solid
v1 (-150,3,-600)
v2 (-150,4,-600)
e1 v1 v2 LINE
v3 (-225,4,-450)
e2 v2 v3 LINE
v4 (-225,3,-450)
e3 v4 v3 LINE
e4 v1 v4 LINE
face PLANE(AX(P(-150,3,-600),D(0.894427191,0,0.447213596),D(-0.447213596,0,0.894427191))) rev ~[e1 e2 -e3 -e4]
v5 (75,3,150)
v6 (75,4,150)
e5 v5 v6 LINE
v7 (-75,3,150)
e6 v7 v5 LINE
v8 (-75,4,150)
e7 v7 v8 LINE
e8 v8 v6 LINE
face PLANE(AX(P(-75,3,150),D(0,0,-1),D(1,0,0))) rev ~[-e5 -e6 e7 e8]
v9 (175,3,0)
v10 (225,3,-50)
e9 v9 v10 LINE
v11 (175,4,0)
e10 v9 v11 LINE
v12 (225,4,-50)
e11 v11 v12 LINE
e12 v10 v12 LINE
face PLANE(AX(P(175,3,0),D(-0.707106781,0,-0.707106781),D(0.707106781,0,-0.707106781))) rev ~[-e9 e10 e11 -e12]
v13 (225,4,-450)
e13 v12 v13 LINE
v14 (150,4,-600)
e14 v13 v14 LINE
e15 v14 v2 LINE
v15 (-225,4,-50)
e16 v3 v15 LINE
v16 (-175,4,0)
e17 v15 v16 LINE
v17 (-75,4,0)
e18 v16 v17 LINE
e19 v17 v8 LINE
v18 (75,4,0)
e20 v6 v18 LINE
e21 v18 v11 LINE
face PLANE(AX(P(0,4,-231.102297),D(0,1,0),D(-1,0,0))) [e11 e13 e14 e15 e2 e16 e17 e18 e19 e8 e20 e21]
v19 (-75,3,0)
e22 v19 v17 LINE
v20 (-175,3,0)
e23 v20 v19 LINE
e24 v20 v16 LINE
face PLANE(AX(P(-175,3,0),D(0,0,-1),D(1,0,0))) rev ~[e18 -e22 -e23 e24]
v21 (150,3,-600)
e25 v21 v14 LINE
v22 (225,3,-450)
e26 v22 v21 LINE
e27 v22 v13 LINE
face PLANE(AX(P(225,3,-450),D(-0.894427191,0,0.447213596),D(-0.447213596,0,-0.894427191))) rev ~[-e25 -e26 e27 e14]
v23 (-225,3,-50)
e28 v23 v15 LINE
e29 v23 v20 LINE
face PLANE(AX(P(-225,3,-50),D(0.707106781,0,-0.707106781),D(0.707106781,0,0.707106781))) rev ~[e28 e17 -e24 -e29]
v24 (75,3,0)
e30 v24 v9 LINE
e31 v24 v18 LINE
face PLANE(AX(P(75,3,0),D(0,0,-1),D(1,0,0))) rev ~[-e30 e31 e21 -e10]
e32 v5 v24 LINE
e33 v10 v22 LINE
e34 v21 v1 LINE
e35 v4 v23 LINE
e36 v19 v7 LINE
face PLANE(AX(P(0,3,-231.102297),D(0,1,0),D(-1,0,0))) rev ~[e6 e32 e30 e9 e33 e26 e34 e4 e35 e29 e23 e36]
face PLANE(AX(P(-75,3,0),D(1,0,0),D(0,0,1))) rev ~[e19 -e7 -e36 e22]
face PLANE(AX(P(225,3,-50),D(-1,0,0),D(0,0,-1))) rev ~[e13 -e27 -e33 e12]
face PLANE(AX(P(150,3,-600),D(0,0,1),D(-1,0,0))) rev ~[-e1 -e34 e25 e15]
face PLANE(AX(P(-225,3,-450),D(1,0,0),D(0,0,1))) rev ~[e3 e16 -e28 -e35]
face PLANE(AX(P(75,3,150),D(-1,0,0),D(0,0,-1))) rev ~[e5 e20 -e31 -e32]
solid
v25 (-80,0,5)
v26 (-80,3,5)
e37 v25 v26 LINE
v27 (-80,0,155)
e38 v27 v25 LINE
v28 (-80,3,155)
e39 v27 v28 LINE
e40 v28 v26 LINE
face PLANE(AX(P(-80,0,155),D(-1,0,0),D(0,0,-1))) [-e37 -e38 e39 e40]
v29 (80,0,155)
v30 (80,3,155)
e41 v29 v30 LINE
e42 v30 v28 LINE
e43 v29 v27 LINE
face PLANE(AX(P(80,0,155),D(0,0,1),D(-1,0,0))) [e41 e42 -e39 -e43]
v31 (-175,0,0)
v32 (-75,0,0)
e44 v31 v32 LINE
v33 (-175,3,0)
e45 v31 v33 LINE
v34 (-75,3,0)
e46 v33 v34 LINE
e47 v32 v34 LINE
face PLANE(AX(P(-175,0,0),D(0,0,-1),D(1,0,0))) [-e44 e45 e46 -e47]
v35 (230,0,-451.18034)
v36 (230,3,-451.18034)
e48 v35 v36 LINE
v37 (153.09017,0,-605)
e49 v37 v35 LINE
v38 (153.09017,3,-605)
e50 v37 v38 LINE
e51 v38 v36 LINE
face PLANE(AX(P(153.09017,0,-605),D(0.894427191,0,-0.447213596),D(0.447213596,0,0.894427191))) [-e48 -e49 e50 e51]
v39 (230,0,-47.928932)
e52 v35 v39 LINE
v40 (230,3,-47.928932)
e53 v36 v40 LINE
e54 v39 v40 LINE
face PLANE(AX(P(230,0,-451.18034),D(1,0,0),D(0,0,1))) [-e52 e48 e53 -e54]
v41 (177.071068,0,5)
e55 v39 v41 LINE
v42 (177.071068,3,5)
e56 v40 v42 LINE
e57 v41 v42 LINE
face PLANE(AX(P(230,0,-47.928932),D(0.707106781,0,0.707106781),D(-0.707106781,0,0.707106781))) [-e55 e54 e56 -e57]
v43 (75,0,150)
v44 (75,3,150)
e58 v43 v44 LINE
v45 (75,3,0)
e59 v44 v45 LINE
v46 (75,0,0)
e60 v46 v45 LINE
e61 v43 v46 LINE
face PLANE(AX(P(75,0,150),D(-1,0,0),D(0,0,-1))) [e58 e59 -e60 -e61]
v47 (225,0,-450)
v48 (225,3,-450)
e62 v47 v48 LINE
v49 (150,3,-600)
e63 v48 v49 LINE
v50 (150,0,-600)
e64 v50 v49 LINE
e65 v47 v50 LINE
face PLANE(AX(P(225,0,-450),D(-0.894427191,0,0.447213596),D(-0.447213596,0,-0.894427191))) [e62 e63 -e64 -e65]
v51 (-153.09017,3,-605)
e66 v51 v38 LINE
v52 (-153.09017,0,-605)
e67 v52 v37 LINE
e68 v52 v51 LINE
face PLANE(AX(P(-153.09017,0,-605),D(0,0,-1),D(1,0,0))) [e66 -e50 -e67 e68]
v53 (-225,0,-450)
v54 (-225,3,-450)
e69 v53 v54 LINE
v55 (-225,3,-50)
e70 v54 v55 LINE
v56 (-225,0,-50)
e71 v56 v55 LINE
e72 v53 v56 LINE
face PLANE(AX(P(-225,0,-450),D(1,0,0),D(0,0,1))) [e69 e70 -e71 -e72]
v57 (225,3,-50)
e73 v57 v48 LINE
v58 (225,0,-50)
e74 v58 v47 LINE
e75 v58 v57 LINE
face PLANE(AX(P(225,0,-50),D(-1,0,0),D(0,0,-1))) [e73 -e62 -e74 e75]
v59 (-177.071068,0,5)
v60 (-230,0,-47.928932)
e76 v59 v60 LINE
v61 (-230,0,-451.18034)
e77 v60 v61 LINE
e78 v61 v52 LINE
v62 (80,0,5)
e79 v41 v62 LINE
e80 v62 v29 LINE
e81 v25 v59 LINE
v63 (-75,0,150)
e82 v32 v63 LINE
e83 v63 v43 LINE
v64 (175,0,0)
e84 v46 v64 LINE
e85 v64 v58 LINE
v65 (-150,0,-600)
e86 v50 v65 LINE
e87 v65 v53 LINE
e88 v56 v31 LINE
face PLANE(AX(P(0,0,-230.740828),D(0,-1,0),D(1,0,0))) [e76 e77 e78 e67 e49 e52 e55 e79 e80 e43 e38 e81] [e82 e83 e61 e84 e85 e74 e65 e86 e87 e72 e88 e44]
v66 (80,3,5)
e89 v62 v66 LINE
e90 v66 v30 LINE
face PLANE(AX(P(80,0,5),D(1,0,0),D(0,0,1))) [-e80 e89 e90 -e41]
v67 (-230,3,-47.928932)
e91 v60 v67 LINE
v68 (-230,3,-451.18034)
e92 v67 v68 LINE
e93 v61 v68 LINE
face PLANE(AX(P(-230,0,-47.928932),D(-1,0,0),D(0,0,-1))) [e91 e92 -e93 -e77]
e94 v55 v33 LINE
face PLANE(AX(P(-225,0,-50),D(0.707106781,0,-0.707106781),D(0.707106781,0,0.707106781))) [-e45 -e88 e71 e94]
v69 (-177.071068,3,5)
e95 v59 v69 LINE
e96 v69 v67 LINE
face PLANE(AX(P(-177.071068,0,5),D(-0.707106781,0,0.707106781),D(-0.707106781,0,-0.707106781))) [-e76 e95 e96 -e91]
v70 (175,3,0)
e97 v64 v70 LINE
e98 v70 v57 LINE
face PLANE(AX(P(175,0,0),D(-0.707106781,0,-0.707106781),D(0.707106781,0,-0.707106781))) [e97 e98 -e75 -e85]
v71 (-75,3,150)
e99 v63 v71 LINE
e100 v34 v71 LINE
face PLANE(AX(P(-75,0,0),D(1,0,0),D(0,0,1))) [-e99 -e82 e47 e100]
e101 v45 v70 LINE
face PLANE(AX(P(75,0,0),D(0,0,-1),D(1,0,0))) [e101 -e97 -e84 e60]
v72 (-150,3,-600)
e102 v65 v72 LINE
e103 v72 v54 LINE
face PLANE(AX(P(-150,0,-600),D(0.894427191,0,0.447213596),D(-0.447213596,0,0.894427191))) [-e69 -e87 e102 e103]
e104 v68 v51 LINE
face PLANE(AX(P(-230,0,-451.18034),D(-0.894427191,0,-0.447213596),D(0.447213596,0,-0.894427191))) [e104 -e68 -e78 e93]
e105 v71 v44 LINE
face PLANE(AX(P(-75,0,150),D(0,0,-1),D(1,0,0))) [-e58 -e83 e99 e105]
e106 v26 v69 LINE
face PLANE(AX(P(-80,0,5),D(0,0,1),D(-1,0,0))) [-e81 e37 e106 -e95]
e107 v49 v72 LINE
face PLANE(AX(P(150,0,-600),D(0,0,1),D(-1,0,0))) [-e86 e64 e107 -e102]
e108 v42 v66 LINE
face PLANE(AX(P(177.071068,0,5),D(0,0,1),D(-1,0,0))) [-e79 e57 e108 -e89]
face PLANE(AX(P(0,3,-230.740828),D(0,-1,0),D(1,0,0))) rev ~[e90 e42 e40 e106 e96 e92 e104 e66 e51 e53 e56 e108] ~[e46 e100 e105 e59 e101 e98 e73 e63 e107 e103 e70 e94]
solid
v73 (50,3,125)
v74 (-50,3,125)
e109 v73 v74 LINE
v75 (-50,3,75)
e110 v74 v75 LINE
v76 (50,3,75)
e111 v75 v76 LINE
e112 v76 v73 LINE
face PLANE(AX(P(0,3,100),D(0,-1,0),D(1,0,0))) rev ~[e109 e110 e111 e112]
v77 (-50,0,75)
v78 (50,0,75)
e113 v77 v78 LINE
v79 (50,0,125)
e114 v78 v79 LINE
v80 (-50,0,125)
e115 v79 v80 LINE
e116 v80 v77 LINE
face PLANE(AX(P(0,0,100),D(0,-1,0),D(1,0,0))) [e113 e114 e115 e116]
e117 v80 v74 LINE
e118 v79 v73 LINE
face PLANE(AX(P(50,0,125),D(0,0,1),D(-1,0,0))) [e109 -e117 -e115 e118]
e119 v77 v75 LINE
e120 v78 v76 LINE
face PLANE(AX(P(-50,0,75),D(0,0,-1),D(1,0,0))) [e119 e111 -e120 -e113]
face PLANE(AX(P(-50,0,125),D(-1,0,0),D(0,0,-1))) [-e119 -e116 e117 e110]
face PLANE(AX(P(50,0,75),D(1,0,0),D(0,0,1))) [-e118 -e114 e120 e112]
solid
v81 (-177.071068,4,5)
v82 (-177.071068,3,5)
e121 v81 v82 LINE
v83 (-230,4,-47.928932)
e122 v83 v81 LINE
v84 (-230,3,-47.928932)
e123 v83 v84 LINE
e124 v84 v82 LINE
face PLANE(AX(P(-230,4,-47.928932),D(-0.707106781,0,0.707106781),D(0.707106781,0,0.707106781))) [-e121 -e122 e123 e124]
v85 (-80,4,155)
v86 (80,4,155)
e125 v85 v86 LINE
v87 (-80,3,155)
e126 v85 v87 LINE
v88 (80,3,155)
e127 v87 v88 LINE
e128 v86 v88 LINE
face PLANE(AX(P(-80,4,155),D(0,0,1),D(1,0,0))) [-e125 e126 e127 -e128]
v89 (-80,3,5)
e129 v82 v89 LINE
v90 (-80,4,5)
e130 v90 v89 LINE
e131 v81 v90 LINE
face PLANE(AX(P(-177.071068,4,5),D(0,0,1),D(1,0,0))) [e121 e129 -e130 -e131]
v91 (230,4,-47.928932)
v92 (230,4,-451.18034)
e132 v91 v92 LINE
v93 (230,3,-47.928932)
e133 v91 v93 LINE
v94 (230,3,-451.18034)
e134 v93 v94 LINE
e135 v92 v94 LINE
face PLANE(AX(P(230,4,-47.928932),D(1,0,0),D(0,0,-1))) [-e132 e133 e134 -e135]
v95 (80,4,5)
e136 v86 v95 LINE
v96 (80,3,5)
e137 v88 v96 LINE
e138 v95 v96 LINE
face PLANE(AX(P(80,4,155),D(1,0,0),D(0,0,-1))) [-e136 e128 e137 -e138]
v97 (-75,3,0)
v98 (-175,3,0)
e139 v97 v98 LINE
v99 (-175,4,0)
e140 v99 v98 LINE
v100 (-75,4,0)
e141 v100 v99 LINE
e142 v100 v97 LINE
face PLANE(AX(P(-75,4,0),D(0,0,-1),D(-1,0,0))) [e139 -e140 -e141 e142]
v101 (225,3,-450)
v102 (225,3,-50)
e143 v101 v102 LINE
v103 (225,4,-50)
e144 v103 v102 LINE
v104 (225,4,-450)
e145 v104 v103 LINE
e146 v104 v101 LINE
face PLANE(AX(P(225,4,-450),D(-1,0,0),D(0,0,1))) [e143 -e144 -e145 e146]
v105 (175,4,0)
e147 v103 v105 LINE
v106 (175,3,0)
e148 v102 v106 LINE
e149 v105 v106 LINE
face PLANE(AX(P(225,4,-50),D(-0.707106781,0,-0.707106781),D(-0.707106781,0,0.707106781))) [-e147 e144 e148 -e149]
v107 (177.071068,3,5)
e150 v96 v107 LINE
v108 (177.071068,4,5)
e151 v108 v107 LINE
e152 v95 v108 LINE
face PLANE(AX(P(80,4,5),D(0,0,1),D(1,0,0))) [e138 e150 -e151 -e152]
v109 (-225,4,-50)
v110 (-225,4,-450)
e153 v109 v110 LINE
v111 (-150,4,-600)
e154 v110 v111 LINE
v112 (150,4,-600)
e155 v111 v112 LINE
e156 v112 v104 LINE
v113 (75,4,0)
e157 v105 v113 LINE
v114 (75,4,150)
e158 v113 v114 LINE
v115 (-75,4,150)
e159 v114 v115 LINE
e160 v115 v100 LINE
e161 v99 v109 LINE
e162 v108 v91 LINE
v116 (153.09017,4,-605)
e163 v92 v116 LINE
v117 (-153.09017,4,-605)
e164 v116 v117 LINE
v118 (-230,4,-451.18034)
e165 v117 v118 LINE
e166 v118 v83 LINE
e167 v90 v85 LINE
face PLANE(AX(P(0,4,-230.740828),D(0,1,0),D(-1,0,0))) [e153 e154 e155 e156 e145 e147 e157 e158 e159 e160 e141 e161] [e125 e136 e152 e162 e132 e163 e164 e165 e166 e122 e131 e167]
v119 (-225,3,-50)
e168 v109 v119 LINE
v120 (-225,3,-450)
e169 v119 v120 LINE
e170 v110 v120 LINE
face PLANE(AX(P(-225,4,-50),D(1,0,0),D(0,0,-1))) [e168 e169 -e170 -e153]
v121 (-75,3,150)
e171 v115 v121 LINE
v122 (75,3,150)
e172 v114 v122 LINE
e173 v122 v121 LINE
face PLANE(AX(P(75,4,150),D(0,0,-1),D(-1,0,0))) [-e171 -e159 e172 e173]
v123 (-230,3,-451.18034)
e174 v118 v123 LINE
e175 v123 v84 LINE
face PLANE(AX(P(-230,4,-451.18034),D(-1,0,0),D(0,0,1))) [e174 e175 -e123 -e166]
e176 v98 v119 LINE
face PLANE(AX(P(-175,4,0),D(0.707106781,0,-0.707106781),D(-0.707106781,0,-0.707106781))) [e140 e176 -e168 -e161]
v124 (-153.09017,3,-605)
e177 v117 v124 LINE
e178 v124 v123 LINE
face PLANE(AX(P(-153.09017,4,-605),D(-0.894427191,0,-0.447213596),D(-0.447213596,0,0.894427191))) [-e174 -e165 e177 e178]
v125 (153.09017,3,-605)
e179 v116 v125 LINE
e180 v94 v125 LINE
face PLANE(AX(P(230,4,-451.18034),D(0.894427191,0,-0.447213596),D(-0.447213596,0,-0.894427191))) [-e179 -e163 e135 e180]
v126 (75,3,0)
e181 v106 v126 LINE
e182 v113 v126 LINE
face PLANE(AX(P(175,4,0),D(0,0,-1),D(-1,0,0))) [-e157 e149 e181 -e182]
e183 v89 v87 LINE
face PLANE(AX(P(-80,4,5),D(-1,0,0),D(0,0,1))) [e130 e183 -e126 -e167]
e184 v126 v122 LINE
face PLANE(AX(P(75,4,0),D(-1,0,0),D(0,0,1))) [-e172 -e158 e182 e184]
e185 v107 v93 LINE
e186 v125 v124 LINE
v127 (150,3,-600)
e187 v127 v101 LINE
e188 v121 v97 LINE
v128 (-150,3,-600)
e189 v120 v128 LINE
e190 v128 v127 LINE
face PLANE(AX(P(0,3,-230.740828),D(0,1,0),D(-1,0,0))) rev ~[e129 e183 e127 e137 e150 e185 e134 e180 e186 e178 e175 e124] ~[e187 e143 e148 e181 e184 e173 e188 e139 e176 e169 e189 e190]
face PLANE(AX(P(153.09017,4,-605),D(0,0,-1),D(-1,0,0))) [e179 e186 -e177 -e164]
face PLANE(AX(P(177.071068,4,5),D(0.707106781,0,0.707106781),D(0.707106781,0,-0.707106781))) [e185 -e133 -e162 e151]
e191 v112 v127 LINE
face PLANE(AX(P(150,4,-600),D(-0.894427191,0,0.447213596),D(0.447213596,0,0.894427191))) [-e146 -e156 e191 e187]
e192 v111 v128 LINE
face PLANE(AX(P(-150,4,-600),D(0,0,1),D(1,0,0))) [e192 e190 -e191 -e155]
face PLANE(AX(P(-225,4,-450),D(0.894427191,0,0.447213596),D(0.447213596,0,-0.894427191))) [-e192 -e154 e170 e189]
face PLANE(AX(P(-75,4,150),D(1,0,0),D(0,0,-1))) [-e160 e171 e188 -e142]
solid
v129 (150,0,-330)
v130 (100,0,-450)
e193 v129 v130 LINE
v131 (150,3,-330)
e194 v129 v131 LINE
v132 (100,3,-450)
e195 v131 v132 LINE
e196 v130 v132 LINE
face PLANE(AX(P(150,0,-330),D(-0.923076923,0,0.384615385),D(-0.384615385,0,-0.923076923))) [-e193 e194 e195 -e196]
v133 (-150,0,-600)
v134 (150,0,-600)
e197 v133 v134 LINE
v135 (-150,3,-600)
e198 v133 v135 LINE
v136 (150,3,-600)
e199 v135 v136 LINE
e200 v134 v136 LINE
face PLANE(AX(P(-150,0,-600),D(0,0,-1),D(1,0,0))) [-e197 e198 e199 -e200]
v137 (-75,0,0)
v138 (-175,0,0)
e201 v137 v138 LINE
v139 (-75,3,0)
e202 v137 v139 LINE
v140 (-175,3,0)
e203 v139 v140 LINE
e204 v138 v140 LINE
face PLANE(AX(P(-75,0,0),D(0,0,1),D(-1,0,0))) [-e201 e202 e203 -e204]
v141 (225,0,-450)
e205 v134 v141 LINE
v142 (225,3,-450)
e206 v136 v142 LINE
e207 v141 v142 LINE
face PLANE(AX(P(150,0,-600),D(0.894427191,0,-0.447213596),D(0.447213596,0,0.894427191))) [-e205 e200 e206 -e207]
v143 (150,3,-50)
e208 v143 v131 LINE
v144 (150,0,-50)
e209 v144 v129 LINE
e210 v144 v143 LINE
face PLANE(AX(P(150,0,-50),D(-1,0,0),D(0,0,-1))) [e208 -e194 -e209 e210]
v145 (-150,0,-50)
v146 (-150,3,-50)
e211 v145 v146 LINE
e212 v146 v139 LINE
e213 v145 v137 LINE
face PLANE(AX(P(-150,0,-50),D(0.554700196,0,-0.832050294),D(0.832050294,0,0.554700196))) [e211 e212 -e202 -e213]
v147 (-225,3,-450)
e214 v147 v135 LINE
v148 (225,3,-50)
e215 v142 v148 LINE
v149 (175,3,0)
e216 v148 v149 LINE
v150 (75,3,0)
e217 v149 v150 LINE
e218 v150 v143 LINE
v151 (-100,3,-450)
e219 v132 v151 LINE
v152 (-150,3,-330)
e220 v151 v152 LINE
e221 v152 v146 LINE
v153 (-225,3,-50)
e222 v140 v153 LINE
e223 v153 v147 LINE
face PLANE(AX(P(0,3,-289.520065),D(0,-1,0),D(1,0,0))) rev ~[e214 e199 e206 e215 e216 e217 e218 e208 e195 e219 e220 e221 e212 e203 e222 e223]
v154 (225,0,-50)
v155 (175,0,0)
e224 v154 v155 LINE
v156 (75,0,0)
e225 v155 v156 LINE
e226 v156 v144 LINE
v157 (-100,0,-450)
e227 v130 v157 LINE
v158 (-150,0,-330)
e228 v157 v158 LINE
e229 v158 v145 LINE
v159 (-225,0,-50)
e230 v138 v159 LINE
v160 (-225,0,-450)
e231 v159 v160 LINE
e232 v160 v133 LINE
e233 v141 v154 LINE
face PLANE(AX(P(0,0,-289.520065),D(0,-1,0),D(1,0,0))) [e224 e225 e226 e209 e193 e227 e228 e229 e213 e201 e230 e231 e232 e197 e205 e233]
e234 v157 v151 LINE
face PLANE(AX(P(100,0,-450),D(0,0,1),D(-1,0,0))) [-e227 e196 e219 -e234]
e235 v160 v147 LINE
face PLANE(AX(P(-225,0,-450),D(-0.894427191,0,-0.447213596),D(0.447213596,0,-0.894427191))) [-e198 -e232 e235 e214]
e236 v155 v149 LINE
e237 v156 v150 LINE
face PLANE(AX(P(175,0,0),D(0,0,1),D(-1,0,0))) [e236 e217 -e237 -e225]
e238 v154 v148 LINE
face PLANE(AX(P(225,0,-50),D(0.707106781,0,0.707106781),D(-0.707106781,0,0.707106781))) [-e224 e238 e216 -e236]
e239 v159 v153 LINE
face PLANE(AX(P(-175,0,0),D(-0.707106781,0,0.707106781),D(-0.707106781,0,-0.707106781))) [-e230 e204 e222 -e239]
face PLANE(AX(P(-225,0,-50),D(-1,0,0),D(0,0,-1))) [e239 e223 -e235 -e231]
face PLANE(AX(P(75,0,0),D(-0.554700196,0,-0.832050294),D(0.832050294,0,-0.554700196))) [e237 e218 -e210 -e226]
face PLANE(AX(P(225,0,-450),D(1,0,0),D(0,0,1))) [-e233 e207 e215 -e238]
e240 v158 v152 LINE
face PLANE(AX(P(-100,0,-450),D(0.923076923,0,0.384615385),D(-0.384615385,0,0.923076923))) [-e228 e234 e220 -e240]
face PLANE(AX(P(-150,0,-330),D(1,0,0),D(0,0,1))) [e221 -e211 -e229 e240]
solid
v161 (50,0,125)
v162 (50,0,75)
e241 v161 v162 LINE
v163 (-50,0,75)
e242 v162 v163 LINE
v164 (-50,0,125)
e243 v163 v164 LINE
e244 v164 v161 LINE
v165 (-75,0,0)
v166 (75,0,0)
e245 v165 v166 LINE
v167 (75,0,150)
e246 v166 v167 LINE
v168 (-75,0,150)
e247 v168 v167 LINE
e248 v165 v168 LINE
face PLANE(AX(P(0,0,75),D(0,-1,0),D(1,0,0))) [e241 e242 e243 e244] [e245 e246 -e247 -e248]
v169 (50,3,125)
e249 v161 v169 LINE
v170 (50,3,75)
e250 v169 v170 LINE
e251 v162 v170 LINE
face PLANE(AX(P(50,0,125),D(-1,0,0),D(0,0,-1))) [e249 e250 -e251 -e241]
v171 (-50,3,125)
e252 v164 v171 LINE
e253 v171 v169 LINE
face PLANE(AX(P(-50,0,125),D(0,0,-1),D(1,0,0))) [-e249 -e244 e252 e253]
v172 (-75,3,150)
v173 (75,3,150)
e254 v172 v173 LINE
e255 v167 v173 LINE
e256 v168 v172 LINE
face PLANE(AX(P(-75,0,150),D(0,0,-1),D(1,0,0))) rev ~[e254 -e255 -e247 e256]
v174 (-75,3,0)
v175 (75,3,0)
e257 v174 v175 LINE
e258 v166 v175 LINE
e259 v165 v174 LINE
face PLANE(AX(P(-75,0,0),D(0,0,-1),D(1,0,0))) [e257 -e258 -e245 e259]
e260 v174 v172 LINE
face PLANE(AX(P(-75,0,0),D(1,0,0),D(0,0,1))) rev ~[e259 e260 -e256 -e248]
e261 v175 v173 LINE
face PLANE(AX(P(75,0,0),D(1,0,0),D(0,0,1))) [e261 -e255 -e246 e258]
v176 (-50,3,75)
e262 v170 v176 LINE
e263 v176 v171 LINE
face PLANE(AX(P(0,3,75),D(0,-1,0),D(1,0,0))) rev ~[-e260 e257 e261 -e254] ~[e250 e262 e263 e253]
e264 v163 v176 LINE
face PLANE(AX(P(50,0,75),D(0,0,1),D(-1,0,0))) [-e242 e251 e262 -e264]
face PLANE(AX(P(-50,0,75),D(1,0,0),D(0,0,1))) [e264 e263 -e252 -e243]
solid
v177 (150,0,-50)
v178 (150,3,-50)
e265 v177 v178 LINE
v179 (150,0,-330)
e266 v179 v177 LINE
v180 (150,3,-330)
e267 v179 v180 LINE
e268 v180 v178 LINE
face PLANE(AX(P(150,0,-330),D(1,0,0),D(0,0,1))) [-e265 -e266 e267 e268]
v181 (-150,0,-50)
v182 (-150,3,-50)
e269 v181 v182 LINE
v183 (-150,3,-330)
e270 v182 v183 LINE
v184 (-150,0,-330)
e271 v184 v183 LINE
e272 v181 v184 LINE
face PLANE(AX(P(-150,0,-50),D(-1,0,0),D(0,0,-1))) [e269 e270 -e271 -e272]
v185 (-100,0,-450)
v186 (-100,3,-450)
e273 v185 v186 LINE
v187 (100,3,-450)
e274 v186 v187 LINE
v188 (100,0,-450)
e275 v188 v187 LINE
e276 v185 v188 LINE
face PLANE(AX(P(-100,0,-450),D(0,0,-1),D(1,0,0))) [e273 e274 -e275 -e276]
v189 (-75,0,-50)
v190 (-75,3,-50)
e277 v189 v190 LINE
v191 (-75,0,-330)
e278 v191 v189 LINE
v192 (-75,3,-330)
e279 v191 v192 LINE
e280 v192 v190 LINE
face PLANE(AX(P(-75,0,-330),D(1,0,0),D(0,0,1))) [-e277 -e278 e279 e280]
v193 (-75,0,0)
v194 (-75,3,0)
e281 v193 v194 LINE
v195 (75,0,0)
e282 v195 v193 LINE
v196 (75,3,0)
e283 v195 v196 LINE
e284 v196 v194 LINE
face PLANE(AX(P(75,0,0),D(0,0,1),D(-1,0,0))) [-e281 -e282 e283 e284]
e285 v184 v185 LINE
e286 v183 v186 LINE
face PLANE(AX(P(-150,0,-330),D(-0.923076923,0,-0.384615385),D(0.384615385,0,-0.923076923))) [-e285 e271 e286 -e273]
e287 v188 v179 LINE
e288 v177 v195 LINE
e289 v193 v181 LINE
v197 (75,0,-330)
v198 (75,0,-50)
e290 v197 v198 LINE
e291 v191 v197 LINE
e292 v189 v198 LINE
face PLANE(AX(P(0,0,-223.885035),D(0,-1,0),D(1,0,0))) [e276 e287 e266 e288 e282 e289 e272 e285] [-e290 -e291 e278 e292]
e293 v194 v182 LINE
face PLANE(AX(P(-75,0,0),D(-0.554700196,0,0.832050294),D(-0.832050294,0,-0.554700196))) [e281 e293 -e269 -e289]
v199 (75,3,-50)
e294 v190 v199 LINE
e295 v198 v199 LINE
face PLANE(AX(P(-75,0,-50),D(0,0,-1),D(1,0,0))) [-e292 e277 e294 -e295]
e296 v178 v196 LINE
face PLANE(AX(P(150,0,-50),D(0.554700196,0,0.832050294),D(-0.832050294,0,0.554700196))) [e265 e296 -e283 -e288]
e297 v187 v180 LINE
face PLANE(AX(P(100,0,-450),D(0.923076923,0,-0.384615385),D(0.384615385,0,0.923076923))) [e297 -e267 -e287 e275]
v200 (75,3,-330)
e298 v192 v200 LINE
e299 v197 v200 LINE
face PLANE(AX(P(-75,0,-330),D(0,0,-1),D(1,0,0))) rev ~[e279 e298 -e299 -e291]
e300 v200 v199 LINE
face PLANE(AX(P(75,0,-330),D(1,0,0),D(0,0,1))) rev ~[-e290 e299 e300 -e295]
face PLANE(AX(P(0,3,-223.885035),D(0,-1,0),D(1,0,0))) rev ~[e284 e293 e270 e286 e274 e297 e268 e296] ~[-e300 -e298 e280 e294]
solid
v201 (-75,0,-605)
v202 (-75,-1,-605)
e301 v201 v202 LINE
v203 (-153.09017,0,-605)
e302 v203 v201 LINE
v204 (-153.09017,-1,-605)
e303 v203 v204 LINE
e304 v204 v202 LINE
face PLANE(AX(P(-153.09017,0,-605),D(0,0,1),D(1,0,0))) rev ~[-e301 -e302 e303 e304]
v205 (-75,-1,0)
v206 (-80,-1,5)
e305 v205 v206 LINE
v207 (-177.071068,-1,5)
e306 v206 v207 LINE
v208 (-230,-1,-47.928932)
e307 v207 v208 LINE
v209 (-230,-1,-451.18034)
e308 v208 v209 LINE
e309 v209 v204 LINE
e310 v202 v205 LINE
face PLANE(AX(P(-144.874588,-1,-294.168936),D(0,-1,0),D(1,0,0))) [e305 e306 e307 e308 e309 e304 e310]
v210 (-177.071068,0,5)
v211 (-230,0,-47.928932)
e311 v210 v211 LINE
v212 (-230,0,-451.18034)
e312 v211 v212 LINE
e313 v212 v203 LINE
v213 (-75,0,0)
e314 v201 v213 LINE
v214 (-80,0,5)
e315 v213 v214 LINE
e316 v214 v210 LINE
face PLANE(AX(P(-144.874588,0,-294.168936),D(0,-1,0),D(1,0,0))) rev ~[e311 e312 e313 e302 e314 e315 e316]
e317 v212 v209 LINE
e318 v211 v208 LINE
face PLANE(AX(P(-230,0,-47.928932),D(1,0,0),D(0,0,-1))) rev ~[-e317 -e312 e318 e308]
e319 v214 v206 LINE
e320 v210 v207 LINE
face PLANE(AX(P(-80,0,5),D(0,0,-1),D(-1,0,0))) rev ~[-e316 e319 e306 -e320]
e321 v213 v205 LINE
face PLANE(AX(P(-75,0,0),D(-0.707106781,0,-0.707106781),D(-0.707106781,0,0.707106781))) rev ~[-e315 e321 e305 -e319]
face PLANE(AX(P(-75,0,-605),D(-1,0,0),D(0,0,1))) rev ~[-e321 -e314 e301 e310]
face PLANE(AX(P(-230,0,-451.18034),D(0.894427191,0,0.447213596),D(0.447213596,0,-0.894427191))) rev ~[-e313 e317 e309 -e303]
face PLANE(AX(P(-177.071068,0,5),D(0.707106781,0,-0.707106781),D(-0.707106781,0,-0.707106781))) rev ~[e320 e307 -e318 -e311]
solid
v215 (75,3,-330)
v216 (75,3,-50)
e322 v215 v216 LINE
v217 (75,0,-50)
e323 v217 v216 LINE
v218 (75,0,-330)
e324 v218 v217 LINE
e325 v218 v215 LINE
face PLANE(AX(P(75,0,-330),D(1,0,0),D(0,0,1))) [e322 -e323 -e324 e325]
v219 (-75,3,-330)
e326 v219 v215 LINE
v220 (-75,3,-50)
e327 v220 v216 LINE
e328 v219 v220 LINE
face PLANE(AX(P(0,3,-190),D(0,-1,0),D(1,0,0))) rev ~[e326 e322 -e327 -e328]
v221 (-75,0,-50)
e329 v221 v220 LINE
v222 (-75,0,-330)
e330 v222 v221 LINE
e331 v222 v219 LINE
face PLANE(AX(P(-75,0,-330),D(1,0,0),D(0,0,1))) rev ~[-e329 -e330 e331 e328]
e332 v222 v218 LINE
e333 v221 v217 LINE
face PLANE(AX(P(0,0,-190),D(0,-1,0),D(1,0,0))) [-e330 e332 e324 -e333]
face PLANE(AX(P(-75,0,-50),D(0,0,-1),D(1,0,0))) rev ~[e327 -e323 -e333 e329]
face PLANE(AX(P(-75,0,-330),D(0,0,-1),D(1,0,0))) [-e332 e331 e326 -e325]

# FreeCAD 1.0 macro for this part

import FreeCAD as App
import Part
import Sketcher
from FreeCAD import Vector
Q = App.Units.Quantity

doc = App.newDocument("Part")
body = doc.addObject("PartDesign::Body", "Body")

sketch1 = doc.addObject("Sketcher::SketchObject", "Sketch")
body.addObject(sketch1)
sketch1.AttachmentSupport = (doc.XZ_Plane, [""])
sketch1.MapMode = "FlatFace"
sketch1.addGeometry([
    Part.LineSegment(Vector(50, 125, 0), Vector(-50, 125, 0)),
    Part.LineSegment(Vector(-50, 125, 0), Vector(-50, 75, 0)),
    Part.LineSegment(Vector(-50, 75, 0), Vector(50, 75, 0)),
    Part.LineSegment(Vector(50, 75, 0), Vector(50, 125, 0)),
], False)
sketch1.addConstraint([
    Sketcher.Constraint("Coincident", 0, 2, 1, 1),
    Sketcher.Constraint("Coincident", 1, 2, 2, 1),
    Sketcher.Constraint("Coincident", 2, 2, 3, 1),
    Sketcher.Constraint("Coincident", 3, 2, 0, 1),
    Sketcher.Constraint("Horizontal", 0),
    Sketcher.Constraint("Vertical", 1),
    Sketcher.Constraint("Horizontal", 2),
    Sketcher.Constraint("Vertical", 3),
    Sketcher.Constraint("DistanceX", 0, 2, 0, 1, 100.0),
    Sketcher.Constraint("DistanceY", 1, 2, 1, 1, 50.0),
    Sketcher.Constraint("DistanceX", 0, 2, -1, 1, 50.0),
    Sketcher.Constraint("DistanceY", -1, 1, 0, 2, 125.0),
])
pad1 = doc.addObject("PartDesign::Pad", "Pad")
body.addObject(pad1)
pad1.Profile = sketch1
pad1.Length = 3
pad1.Reversed = True
body2 = doc.addObject("PartDesign::Body", "Body001")

sketch2 = doc.addObject("Sketcher::SketchObject", "Sketch001")
body2.addObject(sketch2)
sketch2.AttachmentSupport = (doc.getObject("XZ_Plane001"), [""])
sketch2.MapMode = "FlatFace"
sketch2.addGeometry([
    Part.LineSegment(Vector(-75, 150, 0), Vector(-75, 0, 0)),
    Part.LineSegment(Vector(-75, 0, 0), Vector(75, 0, 0)),
    Part.LineSegment(Vector(75, 0, 0), Vector(75, 150, 0)),
    Part.LineSegment(Vector(75, 150, 0), Vector(-75, 150, 0)),
    Part.LineSegment(Vector(-50, 75, 0), Vector(-50, 125, 0)),
    Part.LineSegment(Vector(-50, 125, 0), Vector(50, 125, 0)),
    Part.LineSegment(Vector(50, 125, 0), Vector(50, 75, 0)),
    Part.LineSegment(Vector(50, 75, 0), Vector(-50, 75, 0)),
], False)
sketch2.addConstraint([
    Sketcher.Constraint("Coincident", 0, 2, 1, 1),
    Sketcher.Constraint("Coincident", 1, 2, 2, 1),
    Sketcher.Constraint("Coincident", 2, 2, 3, 1),
    Sketcher.Constraint("Coincident", 3, 2, 0, 1),
    Sketcher.Constraint("Coincident", 4, 2, 5, 1),
    Sketcher.Constraint("Coincident", 5, 2, 6, 1),
    Sketcher.Constraint("Coincident", 6, 2, 7, 1),
    Sketcher.Constraint("Coincident", 7, 2, 4, 1),
    Sketcher.Constraint("Vertical", 0),
    Sketcher.Constraint("Horizontal", 1),
    Sketcher.Constraint("Vertical", 2),
    Sketcher.Constraint("Horizontal", 3),
    Sketcher.Constraint("Vertical", 4),
    Sketcher.Constraint("Horizontal", 5),
    Sketcher.Constraint("Vertical", 6),
    Sketcher.Constraint("Horizontal", 7),
    Sketcher.Constraint("Symmetric", 0, 2, 1, 2, -1, 1),
    Sketcher.Constraint("Equal", 3, 0),
    Sketcher.Constraint("DistanceX", 1, 1, 1, 2, 150.0),
    Sketcher.Constraint("DistanceX", 5, 1, 5, 2, 100.0),
    Sketcher.Constraint("DistanceY", 4, 1, 4, 2, 50.0),
    Sketcher.Constraint("DistanceX", 4, 2, -1, 1, 50.0),
    Sketcher.Constraint("DistanceY", -1, 1, 4, 2, 125.0),
])
pad2 = doc.addObject("PartDesign::Pad", "Pad001")
body2.addObject(pad2)
pad2.Profile = sketch2
pad2.Length = 3
pad2.Reversed = True
body3 = doc.addObject("PartDesign::Body", "Body002")

sketch3 = doc.addObject("Sketcher::SketchObject", "Sketch002")
body3.addObject(sketch3)
sketch3.AttachmentSupport = (doc.getObject("XZ_Plane002"), [""])
sketch3.MapMode = "FlatFace"
sketch3.addGeometry([
    Part.LineSegment(Vector(-75, -50, 0), Vector(-75, -330, 0)),
    Part.LineSegment(Vector(-75, -330, 0), Vector(75, -330, 0)),
    Part.LineSegment(Vector(75, -330, 0), Vector(75, -50, 0)),
    Part.LineSegment(Vector(75, -50, 0), Vector(-75, -50, 0)),
], False)
sketch3.addConstraint([
    Sketcher.Constraint("Coincident", 0, 2, 1, 1),
    Sketcher.Constraint("Coincident", 1, 2, 2, 1),
    Sketcher.Constraint("Coincident", 2, 2, 3, 1),
    Sketcher.Constraint("Coincident", 3, 2, 0, 1),
    Sketcher.Constraint("Vertical", 0),
    Sketcher.Constraint("Horizontal", 1),
    Sketcher.Constraint("Vertical", 2),
    Sketcher.Constraint("Horizontal", 3),
    Sketcher.Constraint("DistanceX", 1, 1, 1, 2, 150.0),
    Sketcher.Constraint("DistanceY", 0, 2, 0, 1, 280.0),
    Sketcher.Constraint("DistanceX", 0, 2, -1, 1, 75.0),
    Sketcher.Constraint("DistanceY", 0, 2, -1, 1, 330.0),
])
pad3 = doc.addObject("PartDesign::Pad", "Pad002")
body3.addObject(pad3)
pad3.Profile = sketch3
pad3.Length = 3
pad3.Reversed = True
body4 = doc.addObject("PartDesign::Body", "Body003")

sketch4 = doc.addObject("Sketcher::SketchObject", "Sketch003")
body4.addObject(sketch4)
sketch4.AttachmentSupport = (doc.getObject("XZ_Plane003"), [""])
sketch4.MapMode = "FlatFace"
sketch4.addGeometry([
    Part.LineSegment(Vector(75, 0, 0), Vector(-75, 0, 0)),
    Part.LineSegment(Vector(-75, 0, 0), Vector(-150, -50, 0)),
    Part.LineSegment(Vector(-150, -50, 0), Vector(-150, -330, 0)),
    Part.LineSegment(Vector(-150, -330, 0), Vector(-100, -450, 0)),
    Part.LineSegment(Vector(-100, -450, 0), Vector(100, -450, 0)),
    Part.LineSegment(Vector(100, -450, 0), Vector(150, -330, 0)),
    Part.LineSegment(Vector(150, -330, 0), Vector(150, -50, 0)),
    Part.LineSegment(Vector(150, -50, 0), Vector(75, 0, 0)),
    Part.LineSegment(Vector(75, -330, 0), Vector(-75, -330, 0)),
    Part.LineSegment(Vector(-75, -330, 0), Vector(-75, -50, 0)),
    Part.LineSegment(Vector(-75, -50, 0), Vector(75, -50, 0)),
    Part.LineSegment(Vector(75, -50, 0), Vector(75, -330, 0)),
], False)
sketch4.addConstraint([
    Sketcher.Constraint("Coincident", 0, 2, 1, 1),
    Sketcher.Constraint("Coincident", 1, 2, 2, 1),
    Sketcher.Constraint("Coincident", 2, 2, 3, 1),
    Sketcher.Constraint("Coincident", 3, 2, 4, 1),
    Sketcher.Constraint("Coincident", 4, 2, 5, 1),
    Sketcher.Constraint("Coincident", 5, 2, 6, 1),
    Sketcher.Constraint("Coincident", 6, 2, 7, 1),
    Sketcher.Constraint("Coincident", 7, 2, 0, 1),
    Sketcher.Constraint("Coincident", 8, 2, 9, 1),
    Sketcher.Constraint("Coincident", 9, 2, 10, 1),
    Sketcher.Constraint("Coincident", 10, 2, 11, 1),
    Sketcher.Constraint("Coincident", 11, 2, 8, 1),
    Sketcher.Constraint("Horizontal", 0),
    Sketcher.Constraint("Vertical", 2),
    Sketcher.Constraint("Horizontal", 4),
    Sketcher.Constraint("Vertical", 6),
    Sketcher.Constraint("Horizontal", 8),
    Sketcher.Constraint("Vertical", 9),
    Sketcher.Constraint("Horizontal", 10),
    Sketcher.Constraint("Vertical", 11),
    Sketcher.Constraint("Symmetric", 0, 2, 7, 2, -1, 1),
    Sketcher.Constraint("Symmetric", 2, 2, 5, 2, -2),
    Sketcher.Constraint("Horizontal", 1, 2, 6, 2),
    Sketcher.Constraint("Horizontal", 5, 2, 8, 2),
    Sketcher.Constraint("Horizontal", 6, 2, 9, 2),
    Sketcher.Constraint("Vertical", 0, 2, 8, 2),
    Sketcher.Constraint("Vertical", 7, 2, 10, 2),
    Sketcher.Constraint("Equal", 3, 5),
    Sketcher.Constraint("DistanceX", 0, 2, 0, 1, 150.0),
    Sketcher.Constraint("DistanceX", 4, 1, 4, 2, 200.0),
    Sketcher.Constraint("DistanceY", 2, 2, 2, 1, 280.0),
    Sketcher.Constraint("Distance", 3, 130.0),
    Sketcher.Constraint("DistanceX", 1, 2, -1, 1, 150.0),
    Sketcher.Constraint("DistanceY", 1, 2, -1, 1, 50.0),
])
pad4 = doc.addObject("PartDesign::Pad", "Pad003")
body4.addObject(pad4)
pad4.Profile = sketch4
pad4.Length = 3
pad4.Reversed = True
body5 = doc.addObject("PartDesign::Body", "Body004")

sketch5 = doc.addObject("Sketcher::SketchObject", "Sketch004")
body5.addObject(sketch5)
sketch5.AttachmentSupport = (doc.getObject("XZ_Plane004"), [""])
sketch5.MapMode = "FlatFace"
sketch5.addGeometry([
    Part.LineSegment(Vector(175, 0, 0), Vector(75, 0, 0)),
    Part.LineSegment(Vector(75, 0, 0), Vector(150, -50, 0)),
    Part.LineSegment(Vector(150, -50, 0), Vector(150, -330, 0)),
    Part.LineSegment(Vector(150, -330, 0), Vector(100, -450, 0)),
    Part.LineSegment(Vector(100, -450, 0), Vector(-100, -450, 0)),
    Part.LineSegment(Vector(-100, -450, 0), Vector(-150, -330, 0)),
    Part.LineSegment(Vector(-150, -330, 0), Vector(-150, -50, 0)),
    Part.LineSegment(Vector(-150, -50, 0), Vector(-75, 0, 0)),
    Part.LineSegment(Vector(-75, 0, 0), Vector(-175, 0, 0)),
    Part.LineSegment(Vector(-175, 0, 0), Vector(-225, -50, 0)),
    Part.LineSegment(Vector(-225, -50, 0), Vector(-225, -450, 0)),
    Part.LineSegment(Vector(-225, -450, 0), Vector(-150, -600, 0)),
    Part.LineSegment(Vector(-150, -600, 0), Vector(150, -600, 0)),
    Part.LineSegment(Vector(150, -600, 0), Vector(225, -450, 0)),
    Part.LineSegment(Vector(225, -450, 0), Vector(225, -50, 0)),
    Part.LineSegment(Vector(225, -50, 0), Vector(175, 0, 0)),
], False)
sketch5.addConstraint([
    Sketcher.Constraint("Coincident", 0, 2, 1, 1),
    Sketcher.Constraint("Coincident", 1, 2, 2, 1),
    Sketcher.Constraint("Coincident", 2, 2, 3, 1),
    Sketcher.Constraint("Coincident", 3, 2, 4, 1),
    Sketcher.Constraint("Coincident", 4, 2, 5, 1),
    Sketcher.Constraint("Coincident", 5, 2, 6, 1),
    Sketcher.Constraint("Coincident", 6, 2, 7, 1),
    Sketcher.Constraint("Coincident", 7, 2, 8, 1),
    Sketcher.Constraint("Coincident", 8, 2, 9, 1),
    Sketcher.Constraint("Coincident", 9, 2, 10, 1),
    Sketcher.Constraint("Coincident", 10, 2, 11, 1),
    Sketcher.Constraint("Coincident", 11, 2, 12, 1),
    Sketcher.Constraint("Coincident", 12, 2, 13, 1),
    Sketcher.Constraint("Coincident", 13, 2, 14, 1),
    Sketcher.Constraint("Coincident", 14, 2, 15, 1),
    Sketcher.Constraint("Coincident", 15, 2, 0, 1),
    Sketcher.Constraint("Horizontal", 0),
    Sketcher.Constraint("Vertical", 2),
    Sketcher.Constraint("Horizontal", 4),
    Sketcher.Constraint("Vertical", 6),
    Sketcher.Constraint("Horizontal", 8),
    Sketcher.Constraint("Vertical", 10),
    Sketcher.Constraint("Horizontal", 12),
    Sketcher.Constraint("Vertical", 14),
    Sketcher.Constraint("Symmetric", 0, 2, 7, 2, -1, 1),
    Sketcher.Constraint("Symmetric", 2, 2, 5, 2, -2),
    Sketcher.Constraint("Symmetric", 10, 2, 13, 2, -2),
    Sketcher.Constraint("Symmetric", 8, 2, 15, 2, -2),
    Sketcher.Constraint("Perpendicular", 9, 15),
    Sketcher.Constraint("Horizontal", 1, 2, 6, 2),
    Sketcher.Constraint("Horizontal", 6, 2, 9, 2),
    Sketcher.Constraint("Horizontal", 4, 2, 10, 2),
    Sketcher.Constraint("Horizontal", 9, 2, 14, 2),
    Sketcher.Constraint("Vertical", 6, 2, 11, 2),
    Sketcher.Constraint("Vertical", 2, 2, 12, 2),
    Sketcher.Constraint("Equal", 3, 5),
    Sketcher.Constraint("DistanceX", 0, 2, 0, 1, 100.0),
    Sketcher.Constraint("DistanceX", 4, 2, 4, 1, 200.0),
    Sketcher.Constraint("DistanceX", 12, 1, 12, 2, 300.0),
    Sketcher.Constraint("DistanceY", 2, 2, 2, 1, 280.0),
    Sketcher.Constraint("DistanceY", 10, 2, 10, 1, 400.0),
    Sketcher.Constraint("DistanceX", -1, 1, 0, 2, 75.0),
    Sketcher.Constraint("DistanceY", 1, 2, -1, 1, 50.0),
    Sketcher.Constraint("DistanceY", 11, 2, -1, 1, 600.0),
])
pad5 = doc.addObject("PartDesign::Pad", "Pad004")
body5.addObject(pad5)
pad5.Profile = sketch5
pad5.Length = 3
pad5.Reversed = True
body6 = doc.addObject("PartDesign::Body", "Body005")

sketch6 = doc.addObject("Sketcher::SketchObject", "Sketch005")
body6.addObject(sketch6)
sketch6.AttachmentSupport = (doc.getObject("XZ_Plane005"), [""])
sketch6.MapMode = "FlatFace"
sketch6.addGeometry([
    Part.LineSegment(Vector(230, -47.928932, 0), Vector(177.071068, 5, 0)),
    Part.LineSegment(Vector(177.071068, 5, 0), Vector(80, 5, 0)),
    Part.LineSegment(Vector(80, 5, 0), Vector(80, 155, 0)),
    Part.LineSegment(Vector(80, 155, 0), Vector(-80, 155, 0)),
    Part.LineSegment(Vector(-80, 155, 0), Vector(-80, 5, 0)),
    Part.LineSegment(Vector(-80, 5, 0), Vector(-177.071068, 5, 0)),
    Part.LineSegment(Vector(-177.071068, 5, 0), Vector(-230, -47.928932, 0)),
    Part.LineSegment(Vector(-230, -47.928932, 0), Vector(-230, -451.18034, 0)),
    Part.LineSegment(Vector(-230, -451.18034, 0), Vector(-153.09017, -605, 0)),
    Part.LineSegment(Vector(-153.09017, -605, 0), Vector(153.09017, -605, 0)),
    Part.LineSegment(Vector(153.09017, -605, 0), Vector(230, -451.18034, 0)),
    Part.LineSegment(Vector(230, -451.18034, 0), Vector(230, -47.928932, 0)),
    Part.LineSegment(Vector(-75, 0, 0), Vector(-75, 150, 0)),
    Part.LineSegment(Vector(-75, 150, 0), Vector(75, 150, 0)),
    Part.LineSegment(Vector(75, 150, 0), Vector(75, 0, 0)),
    Part.LineSegment(Vector(75, 0, 0), Vector(175, 0, 0)),
    Part.LineSegment(Vector(175, 0, 0), Vector(225, -50, 0)),
    Part.LineSegment(Vector(225, -50, 0), Vector(225, -450, 0)),
    Part.LineSegment(Vector(225, -450, 0), Vector(150, -600, 0)),
    Part.LineSegment(Vector(150, -600, 0), Vector(-150, -600, 0)),
    Part.LineSegment(Vector(-150, -600, 0), Vector(-225, -450, 0)),
    Part.LineSegment(Vector(-225, -450, 0), Vector(-225, -50, 0)),
    Part.LineSegment(Vector(-225, -50, 0), Vector(-175, 0, 0)),
    Part.LineSegment(Vector(-175, 0, 0), Vector(-75, 0, 0)),
], False)
sketch6.addConstraint([
    Sketcher.Constraint("Coincident", 0, 2, 1, 1),
    Sketcher.Constraint("Coincident", 1, 2, 2, 1),
    Sketcher.Constraint("Coincident", 2, 2, 3, 1),
    Sketcher.Constraint("Coincident", 3, 2, 4, 1),
    Sketcher.Constraint("Coincident", 4, 2, 5, 1),
    Sketcher.Constraint("Coincident", 5, 2, 6, 1),
    Sketcher.Constraint("Coincident", 6, 2, 7, 1),
    Sketcher.Constraint("Coincident", 7, 2, 8, 1),
    Sketcher.Constraint("Coincident", 8, 2, 9, 1),
    Sketcher.Constraint("Coincident", 9, 2, 10, 1),
    Sketcher.Constraint("Coincident", 10, 2, 11, 1),
    Sketcher.Constraint("Coincident", 11, 2, 0, 1),
    Sketcher.Constraint("Coincident", 12, 2, 13, 1),
    Sketcher.Constraint("Coincident", 13, 2, 14, 1),
    Sketcher.Constraint("Coincident", 14, 2, 15, 1),
    Sketcher.Constraint("Coincident", 15, 2, 16, 1),
    Sketcher.Constraint("Coincident", 16, 2, 17, 1),
    Sketcher.Constraint("Coincident", 17, 2, 18, 1),
    Sketcher.Constraint("Coincident", 18, 2, 19, 1),
    Sketcher.Constraint("Coincident", 19, 2, 20, 1),
    Sketcher.Constraint("Coincident", 20, 2, 21, 1),
    Sketcher.Constraint("Coincident", 21, 2, 22, 1),
    Sketcher.Constraint("Coincident", 22, 2, 23, 1),
    Sketcher.Constraint("Coincident", 23, 2, 12, 1),
    Sketcher.Constraint("Horizontal", 1),
    Sketcher.Constraint("Vertical", 2),
    Sketcher.Constraint("Horizontal", 3),
    Sketcher.Constraint("Vertical", 4),
    Sketcher.Constraint("Horizontal", 5),
    Sketcher.Constraint("Vertical", 7),
    Sketcher.Constraint("Horizontal", 9),
    Sketcher.Constraint("Vertical", 11),
    Sketcher.Constraint("Vertical", 12),
    Sketcher.Constraint("Horizontal", 13),
    Sketcher.Constraint("Vertical", 14),
    Sketcher.Constraint("Horizontal", 15),
    Sketcher.Constraint("Vertical", 17),
    Sketcher.Constraint("Horizontal", 19),
    Sketcher.Constraint("Vertical", 21),
    Sketcher.Constraint("Horizontal", 23),
    Sketcher.Constraint("Symmetric", 15, 2, 22, 2, -1, 1),
    Sketcher.Constraint("Symmetric", 1, 2, 4, 2, -2),
    Sketcher.Constraint("Symmetric", 7, 2, 10, 2, -2),
    Sketcher.Constraint("Symmetric", 17, 2, 20, 2, -2),
    Sketcher.Constraint("Symmetric", 14, 2, 23, 2, -2),
    Sketcher.Constraint("Perpendicular", 0, 6),
    Sketcher.Constraint("Perpendicular", 6, 16),
    Sketcher.Constraint("Parallel", 10, 18),
    Sketcher.Constraint("Parallel", 8, 20),
    Sketcher.Constraint("Perpendicular", 16, 22),
    Sketcher.Constraint("Horizontal", 6, 2, 11, 2),
    Sketcher.Constraint("Horizontal", 16, 2, 21, 2),
    Sketcher.Constraint("Equal", 13, 2),
    Sketcher.Constraint("Equal", 4, 12),
    Sketcher.Constraint("Equal", 8, 10),
    Sketcher.Constraint("DistanceX", 3, 2, 3, 1, 160.0),
    Sketcher.Constraint("DistanceX", 13, 1, 13, 2, 150.0),
    Sketcher.Constraint("DistanceX", 15, 1, 15, 2, 100.0),
    Sketcher.Constraint("DistanceX", 19, 2, 19, 1, 300.0),
    Sketcher.Constraint("DistanceY", 17, 2, 17, 1, 400.0),
    Sketcher.Constraint("DistanceY", -1, 1, 0, 2, 5.0),
    Sketcher.Constraint("DistanceX", 6, 2, -1, 1, 230.0),
    Sketcher.Constraint("DistanceY", 8, 2, -1, 1, 605.0),
    Sketcher.Constraint("DistanceX", -1, 1, 16, 2, 225.0),
    Sketcher.Constraint("DistanceY", 18, 2, -1, 1, 600.0),
    Sketcher.Constraint("DistanceX", 9, 1, 9, 2, 306.18034),
    Sketcher.Constraint("DistanceX", 1, 2, 1, 1, 97.071068),
])
pad6 = doc.addObject("PartDesign::Pad", "Pad005")
body6.addObject(pad6)
pad6.Profile = sketch6
pad6.Length = 3
pad6.Reversed = True
body7 = doc.addObject("PartDesign::Body", "Body006")

sketch7 = doc.addObject("Sketcher::SketchObject", "Sketch006")
body7.addObject(sketch7)
sketch7.AttachmentSupport = (doc.getObject("XZ_Plane006"), [""])
sketch7.MapMode = "FlatFace"
sketch7.AttachmentOffset = App.Placement(Vector(0, 0, -3), App.Rotation())
sketch7.addGeometry([
    Part.LineSegment(Vector(-75, 0, 0), Vector(-75, 150, 0)),
    Part.LineSegment(Vector(-75, 150, 0), Vector(75, 150, 0)),
    Part.LineSegment(Vector(75, 150, 0), Vector(75, 0, 0)),
    Part.LineSegment(Vector(75, 0, 0), Vector(175, 0, 0)),
    Part.LineSegment(Vector(175, 0, 0), Vector(225, -50, 0)),
    Part.LineSegment(Vector(225, -50, 0), Vector(225, -450, 0)),
    Part.LineSegment(Vector(225, -450, 0), Vector(150, -600, 0)),
    Part.LineSegment(Vector(150, -600, 0), Vector(-150, -600, 0)),
    Part.LineSegment(Vector(-150, -600, 0), Vector(-225, -450, 0)),
    Part.LineSegment(Vector(-225, -450, 0), Vector(-225, -50, 0)),
    Part.LineSegment(Vector(-225, -50, 0), Vector(-175, 0, 0)),
    Part.LineSegment(Vector(-175, 0, 0), Vector(-75, 0, 0)),
], False)
sketch7.addConstraint([
    Sketcher.Constraint("Coincident", 0, 2, 1, 1),
    Sketcher.Constraint("Coincident", 1, 2, 2, 1),
    Sketcher.Constraint("Coincident", 2, 2, 3, 1),
    Sketcher.Constraint("Coincident", 3, 2, 4, 1),
    Sketcher.Constraint("Coincident", 4, 2, 5, 1),
    Sketcher.Constraint("Coincident", 5, 2, 6, 1),
    Sketcher.Constraint("Coincident", 6, 2, 7, 1),
    Sketcher.Constraint("Coincident", 7, 2, 8, 1),
    Sketcher.Constraint("Coincident", 8, 2, 9, 1),
    Sketcher.Constraint("Coincident", 9, 2, 10, 1),
    Sketcher.Constraint("Coincident", 10, 2, 11, 1),
    Sketcher.Constraint("Coincident", 11, 2, 0, 1),
    Sketcher.Constraint("Vertical", 0),
    Sketcher.Constraint("Horizontal", 1),
    Sketcher.Constraint("Vertical", 2),
    Sketcher.Constraint("Horizontal", 3),
    Sketcher.Constraint("Vertical", 5),
    Sketcher.Constraint("Horizontal", 7),
    Sketcher.Constraint("Vertical", 9),
    Sketcher.Constraint("Horizontal", 11),
    Sketcher.Constraint("Symmetric", 3, 2, 10, 2, -1, 1),
    Sketcher.Constraint("Symmetric", 5, 2, 8, 2, -2),
    Sketcher.Constraint("Symmetric", 2, 2, 11, 2, -2),
    Sketcher.Constraint("Perpendicular", 4, 10),
    Sketcher.Constraint("Horizontal", 4, 2, 9, 2),
    Sketcher.Constraint("Equal", 1, 0),
    Sketcher.Constraint("Equal", 6, 8),
    Sketcher.Constraint("DistanceX", 1, 1, 1, 2, 150.0),
    Sketcher.Constraint("DistanceX", 3, 1, 3, 2, 100.0),
    Sketcher.Constraint("DistanceX", 7, 2, 7, 1, 300.0),
    Sketcher.Constraint("DistanceY", 5, 2, 5, 1, 400.0),
    Sketcher.Constraint("DistanceX", -1, 1, 4, 2, 225.0),
    Sketcher.Constraint("DistanceY", 6, 2, -1, 1, 600.0),
])
pad7 = doc.addObject("PartDesign::Pad", "Pad006")
body7.addObject(pad7)
pad7.Profile = sketch7
pad7.Length = 1
pad7.Reversed = True
body8 = doc.addObject("PartDesign::Body", "Body007")

sketch8 = doc.addObject("Sketcher::SketchObject", "Sketch007")
body8.addObject(sketch8)
sketch8.AttachmentSupport = (doc.getObject("XZ_Plane007"), [""])
sketch8.MapMode = "FlatFace"
sketch8.AttachmentOffset = App.Placement(Vector(0, 0, -4), App.Rotation())
sketch8.addGeometry([
    Part.LineSegment(Vector(-80, 155, 0), Vector(80, 155, 0)),
    Part.LineSegment(Vector(80, 155, 0), Vector(80, 5, 0)),
    Part.LineSegment(Vector(80, 5, 0), Vector(177.071068, 5, 0)),
    Part.LineSegment(Vector(177.071068, 5, 0), Vector(230, -47.928932, 0)),
    Part.LineSegment(Vector(230, -47.928932, 0), Vector(230, -451.18034, 0)),
    Part.LineSegment(Vector(230, -451.18034, 0), Vector(153.09017, -605, 0)),
    Part.LineSegment(Vector(153.09017, -605, 0), Vector(-153.09017, -605, 0)),
    Part.LineSegment(Vector(-153.09017, -605, 0), Vector(-230, -451.18034, 0)),
    Part.LineSegment(Vector(-230, -451.18034, 0), Vector(-230, -47.928932, 0)),
    Part.LineSegment(Vector(-230, -47.928932, 0), Vector(-177.071068, 5, 0)),
    Part.LineSegment(Vector(-177.071068, 5, 0), Vector(-80, 5, 0)),
    Part.LineSegment(Vector(-80, 5, 0), Vector(-80, 155, 0)),
    Part.LineSegment(Vector(175, 0, 0), Vector(75, 0, 0)),
    Part.LineSegment(Vector(75, 0, 0), Vector(75, 150, 0)),
    Part.LineSegment(Vector(75, 150, 0), Vector(-75, 150, 0)),
    Part.LineSegment(Vector(-75, 150, 0), Vector(-75, 0, 0)),
    Part.LineSegment(Vector(-75, 0, 0), Vector(-175, 0, 0)),
    Part.LineSegment(Vector(-175, 0, 0), Vector(-225, -50, 0)),
    Part.LineSegment(Vector(-225, -50, 0), Vector(-225, -450, 0)),
    Part.LineSegment(Vector(-225, -450, 0), Vector(-150, -600, 0)),
    Part.LineSegment(Vector(-150, -600, 0), Vector(150, -600, 0)),
    Part.LineSegment(Vector(150, -600, 0), Vector(225, -450, 0)),
    Part.LineSegment(Vector(225, -450, 0), Vector(225, -50, 0)),
    Part.LineSegment(Vector(225, -50, 0), Vector(175, 0, 0)),
], False)
sketch8.addConstraint([
    Sketcher.Constraint("Coincident", 0, 2, 1, 1),
    Sketcher.Constraint("Coincident", 1, 2, 2, 1),
    Sketcher.Constraint("Coincident", 2, 2, 3, 1),
    Sketcher.Constraint("Coincident", 3, 2, 4, 1),
    Sketcher.Constraint("Coincident", 4, 2, 5, 1),
    Sketcher.Constraint("Coincident", 5, 2, 6, 1),
    Sketcher.Constraint("Coincident", 6, 2, 7, 1),
    Sketcher.Constraint("Coincident", 7, 2, 8, 1),
    Sketcher.Constraint("Coincident", 8, 2, 9, 1),
    Sketcher.Constraint("Coincident", 9, 2, 10, 1),
    Sketcher.Constraint("Coincident", 10, 2, 11, 1),
    Sketcher.Constraint("Coincident", 11, 2, 0, 1),
    Sketcher.Constraint("Coincident", 12, 2, 13, 1),
    Sketcher.Constraint("Coincident", 13, 2, 14, 1),
    Sketcher.Constraint("Coincident", 14, 2, 15, 1),
    Sketcher.Constraint("Coincident", 15, 2, 16, 1),
    Sketcher.Constraint("Coincident", 16, 2, 17, 1),
    Sketcher.Constraint("Coincident", 17, 2, 18, 1),
    Sketcher.Constraint("Coincident", 18, 2, 19, 1),
    Sketcher.Constraint("Coincident", 19, 2, 20, 1),
    Sketcher.Constraint("Coincident", 20, 2, 21, 1),
    Sketcher.Constraint("Coincident", 21, 2, 22, 1),
    Sketcher.Constraint("Coincident", 22, 2, 23, 1),
    Sketcher.Constraint("Coincident", 23, 2, 12, 1),
    Sketcher.Constraint("Horizontal", 0),
    Sketcher.Constraint("Vertical", 1),
    Sketcher.Constraint("Horizontal", 2),
    Sketcher.Constraint("Vertical", 4),
    Sketcher.Constraint("Horizontal", 6),
    Sketcher.Constraint("Vertical", 8),
    Sketcher.Constraint("Horizontal", 10),
    Sketcher.Constraint("Vertical", 11),
    Sketcher.Constraint("Horizontal", 12),
    Sketcher.Constraint("Vertical", 13),
    Sketcher.Constraint("Horizontal", 14),
    Sketcher.Constraint("Vertical", 15),
    Sketcher.Constraint("Horizontal", 16),
    Sketcher.Constraint("Vertical", 18),
    Sketcher.Constraint("Horizontal", 20),
    Sketcher.Constraint("Vertical", 22),
    Sketcher.Constraint("Symmetric", 12, 2, 15, 2, -1, 1),
    Sketcher.Constraint("Symmetric", 4, 2, 7, 2, -2),
    Sketcher.Constraint("Symmetric", 2, 2, 9, 2, -2),
    Sketcher.Constraint("Symmetric", 18, 2, 21, 2, -2),
    Sketcher.Constraint("Symmetric", 16, 2, 23, 2, -2),
    Sketcher.Constraint("Perpendicular", 3, 9),
    Sketcher.Constraint("Parallel", 9, 17),
    Sketcher.Constraint("Parallel", 7, 19),
    Sketcher.Constraint("Parallel", 5, 21),
    Sketcher.Constraint("Perpendicular", 17, 23),
    Sketcher.Constraint("Horizontal", 3, 2, 8, 2),
    Sketcher.Constraint("Equal", 2, 10),
    Sketcher.Constraint("Equal", 14, 1),
    Sketcher.Constraint("Equal", 11, 13),
    Sketcher.Constraint("Equal", 5, 7),
    Sketcher.Constraint("DistanceX", 0, 1, 0, 2, 160.0),
    Sketcher.Constraint("DistanceX", 12, 2, 12, 1, 100.0),
    Sketcher.Constraint("DistanceX", 14, 2, 14, 1, 150.0),
    Sketcher.Constraint("DistanceX", 20, 1, 20, 2, 300.0),
    Sketcher.Constraint("DistanceY", 18, 2, 18, 1, 400.0),
    Sketcher.Constraint("DistanceY", -1, 1, 0, 2, 155.0),
    Sketcher.Constraint("DistanceX", -1, 1, 3, 2, 230.0),
    Sketcher.Constraint("DistanceY", 5, 2, -1, 1, 605.0),
    Sketcher.Constraint("DistanceX", 17, 2, -1, 1, 225.0),
    Sketcher.Constraint("DistanceY", 19, 2, -1, 1, 600.0),
    Sketcher.Constraint("DistanceX", 6, 2, 6, 1, 306.18034),
    Sketcher.Constraint("DistanceX", 2, 1, 2, 2, 97.071068),
])
pad8 = doc.addObject("PartDesign::Pad", "Pad007")
body8.addObject(pad8)
pad8.Profile = sketch8
pad8.Length = 1
body9 = doc.addObject("PartDesign::Body", "Body008")

sketch9 = doc.addObject("Sketcher::SketchObject", "Sketch008")
body9.addObject(sketch9)
sketch9.AttachmentSupport = (doc.getObject("XZ_Plane008"), [""])
sketch9.MapMode = "FlatFace"
sketch9.addGeometry([
    Part.LineSegment(Vector(-153.09017, -605, 0), Vector(-75, -605, 0)),
    Part.LineSegment(Vector(-75, -605, 0), Vector(-75, 0, 0)),
    Part.LineSegment(Vector(-75, 0, 0), Vector(-80, 5, 0)),
    Part.LineSegment(Vector(-80, 5, 0), Vector(-177.071068, 5, 0)),
    Part.LineSegment(Vector(-177.071068, 5, 0), Vector(-230, -47.928932, 0)),
    Part.LineSegment(Vector(-230, -47.928932, 0), Vector(-230, -451.18034, 0)),
    Part.LineSegment(Vector(-230, -451.18034, 0), Vector(-153.09017, -605, 0)),
], False)
sketch9.addConstraint([
    Sketcher.Constraint("Coincident", 0, 2, 1, 1),
    Sketcher.Constraint("Coincident", 1, 2, 2, 1),
    Sketcher.Constraint("Coincident", 2, 2, 3, 1),
    Sketcher.Constraint("Coincident", 3, 2, 4, 1),
    Sketcher.Constraint("Coincident", 4, 2, 5, 1),
    Sketcher.Constraint("Coincident", 5, 2, 6, 1),
    Sketcher.Constraint("Coincident", 6, 2, 0, 1),
    Sketcher.Constraint("Horizontal", 0),
    Sketcher.Constraint("Vertical", 1),
    Sketcher.Constraint("Horizontal", 3),
    Sketcher.Constraint("Vertical", 5),
    Sketcher.Constraint("PointOnObject", 1, 2, -1),
    Sketcher.Constraint("Perpendicular", 2, 4),
    Sketcher.Constraint("DistanceY", 1, 1, 1, 2, 605.0),
    Sketcher.Constraint("Angle", 2, Q("135 deg")),
    Sketcher.Constraint("DistanceX", 0, 2, -1, 1, 75.0),
    Sketcher.Constraint("DistanceX", 2, 2, -1, 1, 80.0),
    Sketcher.Constraint("DistanceX", 4, 2, -1, 1, 230.0),
    Sketcher.Constraint("DistanceX", 0, 1, 0, 2, 78.09017),
    Sketcher.Constraint("Distance", 6, 171.975608),
    Sketcher.Constraint("DistanceX", 3, 2, 3, 1, 97.071068),
])
pad9 = doc.addObject("PartDesign::Pad", "Pad008")
body9.addObject(pad9)
pad9.Profile = sketch9
pad9.Length = 1

doc.recompute()
